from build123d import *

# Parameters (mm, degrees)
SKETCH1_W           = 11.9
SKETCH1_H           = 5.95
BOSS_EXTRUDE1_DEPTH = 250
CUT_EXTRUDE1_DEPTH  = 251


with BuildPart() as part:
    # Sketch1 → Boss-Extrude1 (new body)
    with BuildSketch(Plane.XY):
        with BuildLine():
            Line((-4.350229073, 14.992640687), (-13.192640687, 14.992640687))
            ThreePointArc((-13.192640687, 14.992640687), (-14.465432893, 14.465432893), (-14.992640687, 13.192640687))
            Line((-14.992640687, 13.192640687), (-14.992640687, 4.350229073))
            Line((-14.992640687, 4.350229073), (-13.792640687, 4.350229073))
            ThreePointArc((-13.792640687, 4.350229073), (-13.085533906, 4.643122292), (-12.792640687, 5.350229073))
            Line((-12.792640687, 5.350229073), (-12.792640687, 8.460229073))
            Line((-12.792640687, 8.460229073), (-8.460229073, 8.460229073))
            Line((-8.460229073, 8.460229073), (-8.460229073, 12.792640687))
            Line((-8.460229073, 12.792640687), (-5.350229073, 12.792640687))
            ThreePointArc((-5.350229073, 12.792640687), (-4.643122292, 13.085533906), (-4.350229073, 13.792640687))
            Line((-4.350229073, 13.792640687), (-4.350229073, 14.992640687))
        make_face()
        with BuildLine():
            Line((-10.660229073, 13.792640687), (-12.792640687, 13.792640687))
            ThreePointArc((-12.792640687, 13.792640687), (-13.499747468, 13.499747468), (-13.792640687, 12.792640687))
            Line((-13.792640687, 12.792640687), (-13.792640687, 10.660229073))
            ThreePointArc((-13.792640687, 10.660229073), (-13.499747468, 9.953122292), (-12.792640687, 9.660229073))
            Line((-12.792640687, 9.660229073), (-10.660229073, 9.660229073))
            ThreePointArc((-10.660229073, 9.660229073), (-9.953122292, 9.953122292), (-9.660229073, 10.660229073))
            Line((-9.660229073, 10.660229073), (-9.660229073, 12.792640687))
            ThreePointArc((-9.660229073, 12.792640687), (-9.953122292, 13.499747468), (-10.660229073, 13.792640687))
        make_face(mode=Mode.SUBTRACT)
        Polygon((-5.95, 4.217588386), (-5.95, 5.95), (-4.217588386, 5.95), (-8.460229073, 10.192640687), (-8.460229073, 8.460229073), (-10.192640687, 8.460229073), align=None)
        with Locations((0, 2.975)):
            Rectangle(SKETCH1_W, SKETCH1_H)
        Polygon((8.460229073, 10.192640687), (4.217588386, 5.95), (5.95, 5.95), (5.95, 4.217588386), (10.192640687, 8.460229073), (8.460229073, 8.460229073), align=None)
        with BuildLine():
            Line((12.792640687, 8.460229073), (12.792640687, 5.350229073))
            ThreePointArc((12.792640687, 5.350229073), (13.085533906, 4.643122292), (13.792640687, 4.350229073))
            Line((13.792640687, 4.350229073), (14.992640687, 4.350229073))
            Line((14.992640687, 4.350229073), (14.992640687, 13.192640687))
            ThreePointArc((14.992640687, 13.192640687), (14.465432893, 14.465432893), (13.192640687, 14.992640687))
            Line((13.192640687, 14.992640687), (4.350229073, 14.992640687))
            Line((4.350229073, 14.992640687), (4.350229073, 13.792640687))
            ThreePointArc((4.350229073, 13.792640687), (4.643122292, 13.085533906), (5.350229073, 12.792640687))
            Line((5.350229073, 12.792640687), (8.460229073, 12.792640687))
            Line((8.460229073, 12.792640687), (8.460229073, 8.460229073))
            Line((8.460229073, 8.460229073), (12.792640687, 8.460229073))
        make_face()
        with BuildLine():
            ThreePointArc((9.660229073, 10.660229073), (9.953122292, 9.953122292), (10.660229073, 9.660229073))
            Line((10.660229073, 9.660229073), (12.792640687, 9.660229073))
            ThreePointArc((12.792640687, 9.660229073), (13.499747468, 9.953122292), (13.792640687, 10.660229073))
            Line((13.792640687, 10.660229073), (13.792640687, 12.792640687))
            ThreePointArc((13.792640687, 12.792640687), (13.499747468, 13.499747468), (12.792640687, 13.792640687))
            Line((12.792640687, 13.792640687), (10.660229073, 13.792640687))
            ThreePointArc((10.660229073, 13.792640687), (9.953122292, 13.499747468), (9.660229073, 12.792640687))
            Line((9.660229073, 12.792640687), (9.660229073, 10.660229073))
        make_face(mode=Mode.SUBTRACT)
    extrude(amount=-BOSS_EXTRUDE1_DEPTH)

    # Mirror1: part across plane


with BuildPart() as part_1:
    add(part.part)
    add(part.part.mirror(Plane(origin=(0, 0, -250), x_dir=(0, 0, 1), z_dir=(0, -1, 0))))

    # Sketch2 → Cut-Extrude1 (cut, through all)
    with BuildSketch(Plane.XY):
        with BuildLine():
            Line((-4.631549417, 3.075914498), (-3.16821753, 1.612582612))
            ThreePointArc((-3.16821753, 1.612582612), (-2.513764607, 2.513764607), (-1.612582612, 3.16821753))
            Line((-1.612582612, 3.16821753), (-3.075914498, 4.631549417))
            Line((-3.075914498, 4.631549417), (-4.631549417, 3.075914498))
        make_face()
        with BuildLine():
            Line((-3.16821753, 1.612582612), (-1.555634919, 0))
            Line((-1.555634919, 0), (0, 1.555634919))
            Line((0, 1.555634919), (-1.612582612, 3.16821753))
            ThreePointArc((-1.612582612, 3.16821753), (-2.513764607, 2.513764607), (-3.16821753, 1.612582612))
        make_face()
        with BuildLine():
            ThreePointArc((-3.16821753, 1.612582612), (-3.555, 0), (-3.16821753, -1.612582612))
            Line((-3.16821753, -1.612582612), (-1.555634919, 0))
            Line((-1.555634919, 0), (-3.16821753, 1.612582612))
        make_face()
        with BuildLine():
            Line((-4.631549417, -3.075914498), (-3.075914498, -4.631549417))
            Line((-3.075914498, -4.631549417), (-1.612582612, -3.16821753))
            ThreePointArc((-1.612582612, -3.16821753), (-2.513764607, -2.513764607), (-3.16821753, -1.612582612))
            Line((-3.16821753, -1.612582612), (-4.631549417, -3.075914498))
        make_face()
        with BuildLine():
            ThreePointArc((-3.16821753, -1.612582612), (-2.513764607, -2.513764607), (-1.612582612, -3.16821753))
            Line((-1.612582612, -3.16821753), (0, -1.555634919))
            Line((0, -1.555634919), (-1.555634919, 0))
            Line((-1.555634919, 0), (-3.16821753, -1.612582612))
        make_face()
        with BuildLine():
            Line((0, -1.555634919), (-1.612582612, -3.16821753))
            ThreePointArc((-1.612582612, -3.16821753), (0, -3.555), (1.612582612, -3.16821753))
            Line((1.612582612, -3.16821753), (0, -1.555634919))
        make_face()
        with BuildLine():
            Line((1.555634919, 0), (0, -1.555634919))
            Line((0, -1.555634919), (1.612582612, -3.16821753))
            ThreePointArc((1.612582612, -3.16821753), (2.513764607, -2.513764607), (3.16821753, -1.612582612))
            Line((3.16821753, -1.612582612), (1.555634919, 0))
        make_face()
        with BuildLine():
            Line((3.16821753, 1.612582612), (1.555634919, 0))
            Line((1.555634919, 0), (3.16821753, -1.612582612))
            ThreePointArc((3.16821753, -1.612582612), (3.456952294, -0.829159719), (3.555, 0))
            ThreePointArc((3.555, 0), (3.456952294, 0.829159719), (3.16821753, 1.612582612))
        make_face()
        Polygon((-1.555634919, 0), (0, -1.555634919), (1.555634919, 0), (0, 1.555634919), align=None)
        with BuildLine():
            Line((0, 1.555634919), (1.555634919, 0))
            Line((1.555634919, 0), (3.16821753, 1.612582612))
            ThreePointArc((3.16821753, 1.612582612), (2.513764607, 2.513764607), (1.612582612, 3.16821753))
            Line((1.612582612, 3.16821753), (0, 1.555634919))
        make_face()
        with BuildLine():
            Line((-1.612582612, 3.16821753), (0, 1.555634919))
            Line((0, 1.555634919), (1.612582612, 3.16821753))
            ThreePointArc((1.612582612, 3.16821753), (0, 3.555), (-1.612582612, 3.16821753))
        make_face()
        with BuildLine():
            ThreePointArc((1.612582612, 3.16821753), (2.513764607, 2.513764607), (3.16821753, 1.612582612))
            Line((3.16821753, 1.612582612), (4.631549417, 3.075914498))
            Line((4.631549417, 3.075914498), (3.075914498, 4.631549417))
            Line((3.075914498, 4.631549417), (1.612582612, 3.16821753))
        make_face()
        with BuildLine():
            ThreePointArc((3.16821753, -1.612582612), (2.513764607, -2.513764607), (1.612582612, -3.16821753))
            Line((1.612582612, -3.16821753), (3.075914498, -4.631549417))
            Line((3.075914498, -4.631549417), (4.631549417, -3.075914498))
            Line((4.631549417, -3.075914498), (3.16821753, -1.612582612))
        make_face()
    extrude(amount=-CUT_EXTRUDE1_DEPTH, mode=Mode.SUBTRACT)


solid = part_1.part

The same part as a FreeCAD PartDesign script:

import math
import FreeCAD as App
import Part
import Sketcher
Q = App.Units.Quantity

doc = App.newDocument("Part")
body = doc.addObject("PartDesign::Body", "Body")

sketch1 = body.newObject("Sketcher::SketchObject", "Sketch")
sketch1.AttachmentSupport = (doc.getObject("XY_Plane"), [""])
sketch1.MapMode = "FlatFace"
sketch1.addGeometry(Part.LineSegment(App.Vector(-4.4, 15, 0), App.Vector(-13.2, 15, 0)), False)
sketch1.addGeometry(Part.ArcOfCircle(Part.Circle(App.Vector(-13.2, 13.2, 0), App.Vector(0, 0, 1), 1.8), math.radians(90), math.radians(180)), False)
sketch1.addGeometry(Part.LineSegment(App.Vector(-15, 13.2, 0), App.Vector(-15, 4.4, 0)), False)
sketch1.addGeometry(Part.LineSegment(App.Vector(-15, 4.4, 0), App.Vector(-13.8, 4.4, 0)), False)
sketch1.addGeometry(Part.ArcOfCircle(Part.Circle(App.Vector(-13.8, 5.4, 0), App.Vector(0, 0, 1), 1), math.radians(-90), math.radians(0)), False)
sketch1.addGeometry(Part.LineSegment(App.Vector(-12.8, 5.4, 0), App.Vector(-12.8, 8.5, 0)), False)
sketch1.addGeometry(Part.LineSegment(App.Vector(-12.8, 8.5, 0), App.Vector(-10.2, 8.5, 0)), False)
sketch1.addGeometry(Part.LineSegment(App.Vector(-10.2, 8.5, 0), App.Vector(-6, 4.2, 0)), False)
sketch1.addGeometry(Part.LineSegment(App.Vector(-6, 4.2, 0), App.Vector(-6, 0, 0)), False)
sketch1.addGeometry(Part.LineSegment(App.Vector(-6, 0, 0), App.Vector(6, 0, 0)), False)
sketch1.addGeometry(Part.LineSegment(App.Vector(6, 0, 0), App.Vector(6, 4.2, 0)), False)
sketch1.addGeometry(Part.LineSegment(App.Vector(6, 4.2, 0), App.Vector(10.2, 8.5, 0)), False)
sketch1.addGeometry(Part.LineSegment(App.Vector(10.2, 8.5, 0), App.Vector(12.8, 8.5, 0)), False)
sketch1.addGeometry(Part.LineSegment(App.Vector(12.8, 8.5, 0), App.Vector(12.8, 5.4, 0)), False)
sketch1.addGeometry(Part.ArcOfCircle(Part.Circle(App.Vector(13.8, 5.4, 0), App.Vector(0, 0, 1), 1), math.radians(-180), math.radians(-90)), False)
sketch1.addGeometry(Part.LineSegment(App.Vector(13.8, 4.4, 0), App.Vector(15, 4.4, 0)), False)
sketch1.addGeometry(Part.LineSegment(App.Vector(15, 4.4, 0), App.Vector(15, 13.2, 0)), False)
sketch1.addGeometry(Part.ArcOfCircle(Part.Circle(App.Vector(13.2, 13.2, 0), App.Vector(0, 0, 1), 1.8), math.radians(0), math.radians(90)), False)
sketch1.addGeometry(Part.LineSegment(App.Vector(13.2, 15, 0), App.Vector(4.4, 15, 0)), False)
sketch1.addGeometry(Part.LineSegment(App.Vector(4.4, 15, 0), App.Vector(4.4, 13.8, 0)), False)
sketch1.addGeometry(Part.ArcOfCircle(Part.Circle(App.Vector(5.4, 13.8, 0), App.Vector(0, 0, 1), 1), math.radians(-180), math.radians(-90)), False)
sketch1.addGeometry(Part.LineSegment(App.Vector(5.4, 12.8, 0), App.Vector(8.5, 12.8, 0)), False)
sketch1.addGeometry(Part.LineSegment(App.Vector(8.5, 12.8, 0), App.Vector(8.5, 10.2, 0)), False)
sketch1.addGeometry(Part.LineSegment(App.Vector(8.5, 10.2, 0), App.Vector(4.2, 6, 0)), False)
sketch1.addGeometry(Part.LineSegment(App.Vector(4.2, 6, 0), App.Vector(-4.2, 6, 0)), False)
sketch1.addGeometry(Part.LineSegment(App.Vector(-4.2, 6, 0), App.Vector(-8.5, 10.2, 0)), False)
sketch1.addGeometry(Part.LineSegment(App.Vector(-8.5, 10.2, 0), App.Vector(-8.5, 12.8, 0)), False)
sketch1.addGeometry(Part.LineSegment(App.Vector(-8.5, 12.8, 0), App.Vector(-5.4, 12.8, 0)), False)
sketch1.addGeometry(Part.ArcOfCircle(Part.Circle(App.Vector(-5.4, 13.8, 0), App.Vector(0, 0, 1), 1), math.radians(-90), math.radians(0)), False)
sketch1.addGeometry(Part.LineSegment(App.Vector(-4.4, 13.8, 0), App.Vector(-4.4, 15, 0)), False)
sketch1.addGeometry(Part.LineSegment(App.Vector(-12.8, 13.8, 0), App.Vector(-10.7, 13.8, 0)), False)
sketch1.addGeometry(Part.ArcOfCircle(Part.Circle(App.Vector(-10.7, 12.8, 0), App.Vector(0, 0, 1), 1), math.radians(0), math.radians(90)), False)
sketch1.addGeometry(Part.LineSegment(App.Vector(-9.7, 12.8, 0), App.Vector(-9.7, 10.7, 0)), False)
sketch1.addGeometry(Part.ArcOfCircle(Part.Circle(App.Vector(-10.7, 10.7, 0), App.Vector(0, 0, 1), 1), math.radians(-90), math.radians(0)), False)
sketch1.addGeometry(Part.LineSegment(App.Vector(-10.7, 9.7, 0), App.Vector(-12.8, 9.7, 0)), False)
sketch1.addGeometry(Part.ArcOfCircle(Part.Circle(App.Vector(-12.8, 10.7, 0), App.Vector(0, 0, 1), 1), math.radians(-180), math.radians(-90)), False)
sketch1.addGeometry(Part.LineSegment(App.Vector(-13.8, 10.7, 0), App.Vector(-13.8, 12.8, 0)), False)
sketch1.addGeometry(Part.ArcOfCircle(Part.Circle(App.Vector(-12.8, 12.8, 0), App.Vector(0, 0, 1), 1), math.radians(90), math.radians(180)), False)
sketch1.addGeometry(Part.ArcOfCircle(Part.Circle(App.Vector(10.7, 10.7, 0), App.Vector(0, 0, 1), 1), math.radians(-180), math.radians(-90)), False)
sketch1.addGeometry(Part.LineSegment(App.Vector(9.7, 10.7, 0), App.Vector(9.7, 12.8, 0)), False)
sketch1.addGeometry(Part.ArcOfCircle(Part.Circle(App.Vector(10.7, 12.8, 0), App.Vector(0, 0, 1), 1), math.radians(90), math.radians(180)), False)
sketch1.addGeometry(Part.LineSegment(App.Vector(10.7, 13.8, 0), App.Vector(12.8, 13.8, 0)), False)
sketch1.addGeometry(Part.ArcOfCircle(Part.Circle(App.Vector(12.8, 12.8, 0), App.Vector(0, 0, 1), 1), math.radians(0), math.radians(90)), False)
sketch1.addGeometry(Part.LineSegment(App.Vector(13.8, 12.8, 0), App.Vector(13.8, 10.7, 0)), False)
sketch1.addGeometry(Part.ArcOfCircle(Part.Circle(App.Vector(12.8, 10.7, 0), App.Vector(0, 0, 1), 1), math.radians(-90), math.radians(0)), False)
sketch1.addGeometry(Part.LineSegment(App.Vector(12.8, 9.7, 0), App.Vector(10.7, 9.7, 0)), False)
sketch1.addConstraint(Sketcher.Constraint("Tangent", 0, 2, 1, 1))
sketch1.addConstraint(Sketcher.Constraint("Tangent", 1, 2, 2, 1))
sketch1.addConstraint(Sketcher.Constraint("Coincident", 2, 2, 3, 1))
sketch1.addConstraint(Sketcher.Constraint("Tangent", 3, 2, 4, 1))
sketch1.addConstraint(Sketcher.Constraint("Tangent", 4, 2, 5, 1))
sketch1.addConstraint(Sketcher.Constraint("Coincident", 5, 2, 6, 1))
sketch1.addConstraint(Sketcher.Constraint("Coincident", 6, 2, 7, 1))
sketch1.addConstraint(Sketcher.Constraint("Coincident", 7, 2, 8, 1))
sketch1.addConstraint(Sketcher.Constraint("Coincident", 8, 2, 9, 1))
sketch1.addConstraint(Sketcher.Constraint("Coincident", 9, 2, 10, 1))
sketch1.addConstraint(Sketcher.Constraint("Coincident", 10, 2, 11, 1))
sketch1.addConstraint(Sketcher.Constraint("Coincident", 11, 2, 12, 1))
sketch1.addConstraint(Sketcher.Constraint("Coincident", 12, 2, 13, 1))
sketch1.addConstraint(Sketcher.Constraint("Tangent", 13, 2, 14, 1))
sketch1.addConstraint(Sketcher.Constraint("Tangent", 14, 2, 15, 1))
sketch1.addConstraint(Sketcher.Constraint("Coincident", 15, 2, 16, 1))
sketch1.addConstraint(Sketcher.Constraint("Tangent", 16, 2, 17, 1))
sketch1.addConstraint(Sketcher.Constraint("Tangent", 17, 2, 18, 1))
sketch1.addConstraint(Sketcher.Constraint("Coincident", 18, 2, 19, 1))
sketch1.addConstraint(Sketcher.Constraint("Tangent", 19, 2, 20, 1))
sketch1.addConstraint(Sketcher.Constraint("Tangent", 20, 2, 21, 1))
sketch1.addConstraint(Sketcher.Constraint("Coincident", 21, 2, 22, 1))
sketch1.addConstraint(Sketcher.Constraint("Coincident", 22, 2, 23, 1))
sketch1.addConstraint(Sketcher.Constraint("Coincident", 23, 2, 24, 1))
sketch1.addConstraint(Sketcher.Constraint("Coincident", 24, 2, 25, 1))
sketch1.addConstraint(Sketcher.Constraint("Coincident", 25, 2, 26, 1))
sketch1.addConstraint(Sketcher.Constraint("Coincident", 26, 2, 27, 1))
sketch1.addConstraint(Sketcher.Constraint("Tangent", 27, 2, 28, 1))
sketch1.addConstraint(Sketcher.Constraint("Tangent", 28, 2, 29, 1))
sketch1.addConstraint(Sketcher.Constraint("Coincident", 29, 2, 0, 1))
sketch1.addConstraint(Sketcher.Constraint("Tangent", 30, 2, 31, 2))
sketch1.addConstraint(Sketcher.Constraint("Tangent", 31, 1, 32, 1))
sketch1.addConstraint(Sketcher.Constraint("Tangent", 32, 2, 33, 2))
sketch1.addConstraint(Sketcher.Constraint("Tangent", 33, 1, 34, 1))
sketch1.addConstraint(Sketcher.Constraint("Tangent", 34, 2, 35, 2))
sketch1.addConstraint(Sketcher.Constraint("Tangent", 35, 1, 36, 1))
sketch1.addConstraint(Sketcher.Constraint("Tangent", 36, 2, 37, 2))
sketch1.addConstraint(Sketcher.Constraint("Tangent", 37, 1, 30, 1))
sketch1.addConstraint(Sketcher.Constraint("Tangent", 38, 1, 39, 1))
sketch1.addConstraint(Sketcher.Constraint("Tangent", 39, 2, 40, 2))
sketch1.addConstraint(Sketcher.Constraint("Tangent", 40, 1, 41, 1))
sketch1.addConstraint(Sketcher.Constraint("Tangent", 41, 2, 42, 2))
sketch1.addConstraint(Sketcher.Constraint("Tangent", 42, 1, 43, 1))
sketch1.addConstraint(Sketcher.Constraint("Tangent", 43, 2, 44, 2))
sketch1.addConstraint(Sketcher.Constraint("Tangent", 44, 1, 45, 1))
sketch1.addConstraint(Sketcher.Constraint("Tangent", 45, 2, 38, 2))
sketch1.addConstraint(Sketcher.Constraint("Horizontal", 0))
sketch1.addConstraint(Sketcher.Constraint("Vertical", 2))
sketch1.addConstraint(Sketcher.Constraint("Horizontal", 3))
sketch1.addConstraint(Sketcher.Constraint("Vertical", 5))
sketch1.addConstraint(Sketcher.Constraint("Horizontal", 6))
sketch1.addConstraint(Sketcher.Constraint("Vertical", 8))
sketch1.addConstraint(Sketcher.Constraint("Horizontal", 9))
sketch1.addConstraint(Sketcher.Constraint("Vertical", 10))
sketch1.addConstraint(Sketcher.Constraint("Horizontal", 12))
sketch1.addConstraint(Sketcher.Constraint("Vertical", 13))
sketch1.addConstraint(Sketcher.Constraint("Horizontal", 15))
sketch1.addConstraint(Sketcher.Constraint("Vertical", 16))
sketch1.addConstraint(Sketcher.Constraint("Horizontal", 18))
sketch1.addConstraint(Sketcher.Constraint("Vertical", 19))
sketch1.addConstraint(Sketcher.Constraint("Horizontal", 21))
sketch1.addConstraint(Sketcher.Constraint("Vertical", 22))
sketch1.addConstraint(Sketcher.Constraint("Horizontal", 24))
sketch1.addConstraint(Sketcher.Constraint("Vertical", 26))
sketch1.addConstraint(Sketcher.Constraint("Horizontal", 27))
sketch1.addConstraint(Sketcher.Constraint("Vertical", 29))
sketch1.addConstraint(Sketcher.Constraint("Horizontal", 30))
sketch1.addConstraint(Sketcher.Constraint("Vertical", 32))
sketch1.addConstraint(Sketcher.Constraint("Horizontal", 34))
sketch1.addConstraint(Sketcher.Constraint("Vertical", 36))
sketch1.addConstraint(Sketcher.Constraint("Vertical", 39))
sketch1.addConstraint(Sketcher.Constraint("Horizontal", 41))
sketch1.addConstraint(Sketcher.Constraint("Vertical", 43))
sketch1.addConstraint(Sketcher.Constraint("Horizontal", 45))
sketch1.addConstraint(Sketcher.Constraint("Equal", 4, 14))
sketch1.addConstraint(Sketcher.Constraint("Equal", 1, 17))
sketch1.addConstraint(Sketcher.Constraint("Equal", 14, 20))
sketch1.addConstraint(Sketcher.Constraint("Equal", 20, 28))
sketch1.addConstraint(Sketcher.Constraint("Equal", 28, 31))
sketch1.addConstraint(Sketcher.Constraint("Equal", 31, 33))
sketch1.addConstraint(Sketcher.Constraint("Equal", 33, 35))
sketch1.addConstraint(Sketcher.Constraint("Equal", 35, 37))
sketch1.addConstraint(Sketcher.Constraint("Equal", 37, 38))
sketch1.addConstraint(Sketcher.Constraint("Equal", 38, 40))
sketch1.addConstraint(Sketcher.Constraint("Equal", 40, 42))
sketch1.addConstraint(Sketcher.Constraint("Equal", 42, 44))
sketch1.addConstraint(Sketcher.Constraint("Symmetric", 8, 2, 9, 2, -1, 1))
sketch1.addConstraint(Sketcher.Constraint("Symmetric", 4, 3, 14, 3, -2))
sketch1.addConstraint(Sketcher.Constraint("Symmetric", 1, 3, 17, 3, -2))
sketch1.addConstraint(Sketcher.Constraint("Symmetric", 20, 3, 28, 3, -2))
sketch1.addConstraint(Sketcher.Constraint("Symmetric", 33, 3, 38, 3, -2))
sketch1.addConstraint(Sketcher.Constraint("Symmetric", 37, 3, 42, 3, -2))
sketch1.addConstraint(Sketcher.Constraint("Symmetric", 6, 2, 11, 2, -2))
sketch1.addConstraint(Sketcher.Constraint("Symmetric", 22, 2, 25, 2, -2))
sketch1.addConstraint(Sketcher.Constraint("Perpendicular", 7, 11))
sketch1.addConstraint(Sketcher.Constraint("Parallel", 11, 23))
sketch1.addConstraint(Sketcher.Constraint("Perpendicular", 23, 25))
sketch1.addConstraint(Sketcher.Constraint("Horizontal", 7, 2, 10, 2))
sketch1.addConstraint(Sketcher.Constraint("Horizontal", 42, 3, 20, 2))
sketch1.addConstraint(Sketcher.Constraint("Vertical", 37, 3, 4, 2))
sketch1.addConstraint(Sketcher.Constraint("Equal", 18, 2))
sketch1.addConstraint(Sketcher.Constraint("Equal", 27, 5))
sketch1.addConstraint(Sketcher.Constraint("Equal", 15, 19))
sketch1.addConstraint(Sketcher.Constraint("Equal", 12, 22))
sketch1.addConstraint(Sketcher.Constraint("Equal", 45, 32))
sketch1.addConstraint(Sketcher.Constraint("Equal", 11, 23))
sketch1.addConstraint(Sketcher.Constraint("Radius", 4, Q("1 mm")))
sketch1.addConstraint(Sketcher.Constraint("Radius", 1, Q("1.8 mm")))
sketch1.addConstraint(Sketcher.Constraint("Distance", 7, Q("6 mm")))
sketch1.addConstraint(Sketcher.Constraint("DistanceX", 3, 1, 3, 2, Q("1.2 mm")))
sketch1.addConstraint(Sketcher.Constraint("DistanceX", 6, 1, 6, 2, Q("2.6 mm")))
sketch1.addConstraint(Sketcher.Constraint("DistanceX", 9, 1, 9, 2, Q("11.9 mm")))
sketch1.addConstraint(Sketcher.Constraint("DistanceX", 21, 1, 21, 2, Q("3.11 mm")))
sketch1.addConstraint(Sketcher.Constraint("DistanceY", 5, 2, 35, 3, Q("2.2 mm")))
sketch1.addConstraint(Sketcher.Constraint("DistanceY", -1, 1, 23, 2, Q("5.95 mm")))
sketch1.addConstraint(Sketcher.Constraint("DistanceX", 0, 2, 0, 1, Q("8.842412 mm")))
pad1 = body.newObject("PartDesign::Pad", "Pad")
pad1.Profile = sketch1
pad1.Length = 250
pad1.Reversed = True
body2 = doc.addObject("PartDesign::Body", "Body001")
doc.recompute()

body2.BaseFeature = body
doc.recompute()

mirroring = doc.addObject("Part::Mirroring", "Mirroring")
mirroring.Source = body
mirroring.Base = App.Vector(0, 0, -250)
mirroring.Normal = App.Vector(0, -1, 0)
body3 = doc.addObject("PartDesign::Body", "Body002")
body3.BaseFeature = mirroring
boolean = body2.newObject("PartDesign::Boolean", "Boolean")
boolean.Type = "Fuse"
boolean.addObjects([body3])
doc.recompute()

sketch2 = body2.newObject("Sketcher::SketchObject", "Sketch001")
sketch2.AttachmentSupport = (doc.getObject("XY_Plane001"), [""])
sketch2.MapMode = "FlatFace"
sketch2.addGeometry(Part.LineSegment(App.Vector(-4.6, 3.1, 0), App.Vector(-3.2, 1.6, 0)), False)
sketch2.addGeometry(Part.ArcOfCircle(Part.Circle(App.Vector(0, 0, 0), App.Vector(0, 0, 1), 3.6), math.radians(153), math.radians(207)), False)
sketch2.addGeometry(Part.LineSegment(App.Vector(-3.2, -1.6, 0), App.Vector(-4.6, -3.1, 0)), False)
sketch2.addGeometry(Part.LineSegment(App.Vector(-4.6, -3.1, 0), App.Vector(-3.1, -4.6, 0)), False)
sketch2.addGeometry(Part.LineSegment(App.Vector(-3.1, -4.6, 0), App.Vector(-1.6, -3.2, 0)), False)
sketch2.addGeometry(Part.ArcOfCircle(Part.Circle(App.Vector(0, 0, 0), App.Vector(0, 0, 1), 3.6), math.radians(-117), math.radians(-63)), False)
sketch2.addGeometry(Part.LineSegment(App.Vector(1.6, -3.2, 0), App.Vector(3.1, -4.6, 0)), False)
sketch2.addGeometry(Part.LineSegment(App.Vector(3.1, -4.6, 0), App.Vector(4.6, -3.1, 0)), False)
sketch2.addGeometry(Part.LineSegment(App.Vector(4.6, -3.1, 0), App.Vector(3.2, -1.6, 0)), False)
sketch2.addGeometry(Part.ArcOfCircle(Part.Circle(App.Vector(0, 0, 0), App.Vector(0, 0, 1), 3.6), math.radians(-27), math.radians(0)), False)
sketch2.addGeometry(Part.ArcOfCircle(Part.Circle(App.Vector(0, 0, 0), App.Vector(0, 0, 1), 3.6), math.radians(0), math.radians(27)), False)
sketch2.addGeometry(Part.LineSegment(App.Vector(3.2, 1.6, 0), App.Vector(4.6, 3.1, 0)), False)
sketch2.addGeometry(Part.LineSegment(App.Vector(4.6, 3.1, 0), App.Vector(3.1, 4.6, 0)), False)
sketch2.addGeometry(Part.LineSegment(App.Vector(3.1, 4.6, 0), App.Vector(1.6, 3.2, 0)), False)
sketch2.addGeometry(Part.ArcOfCircle(Part.Circle(App.Vector(0, 0, 0), App.Vector(0, 0, 1), 3.6), math.radians(63), math.radians(117)), False)
sketch2.addGeometry(Part.LineSegment(App.Vector(-1.6, 3.2, 0), App.Vector(-3.1, 4.6, 0)), False)
sketch2.addGeometry(Part.LineSegment(App.Vector(-3.1, 4.6, 0), App.Vector(-4.6, 3.1, 0)), False)
sketch2.addConstraint(Sketcher.Constraint("Coincident", 0, 2, 1, 1))
sketch2.addConstraint(Sketcher.Constraint("Coincident", 1, 2, 2, 1))
sketch2.addConstraint(Sketcher.Constraint("Coincident", 2, 2, 3, 1))
sketch2.addConstraint(Sketcher.Constraint("Coincident", 3, 2, 4, 1))
sketch2.addConstraint(Sketcher.Constraint("Coincident", 4, 2, 5, 1))
sketch2.addConstraint(Sketcher.Constraint("Coincident", 5, 2, 6, 1))
sketch2.addConstraint(Sketcher.Constraint("Coincident", 6, 2, 7, 1))
sketch2.addConstraint(Sketcher.Constraint("Coincident", 7, 2, 8, 1))
sketch2.addConstraint(Sketcher.Constraint("Coincident", 8, 2, 9, 1))
sketch2.addConstraint(Sketcher.Constraint("Tangent", 9, 2, 10, 1))
sketch2.addConstraint(Sketcher.Constraint("Coincident", 10, 2, 11, 1))
sketch2.addConstraint(Sketcher.Constraint("Coincident", 11, 2, 12, 1))
sketch2.addConstraint(Sketcher.Constraint("Coincident", 12, 2, 13, 1))
sketch2.addConstraint(Sketcher.Constraint("Coincident", 13, 2, 14, 1))
sketch2.addConstraint(Sketcher.Constraint("Coincident", 14, 2, 15, 1))
sketch2.addConstraint(Sketcher.Constraint("Coincident", 15, 2, 16, 1))
sketch2.addConstraint(Sketcher.Constraint("Coincident", 16, 2, 0, 1))
sketch2.addConstraint(Sketcher.Constraint("Coincident", 1, 3, -1, 1))
sketch2.addConstraint(Sketcher.Constraint("Coincident", 5, 3, -1, 1))
sketch2.addConstraint(Sketcher.Constraint("Coincident", 9, 3, -1, 1))
sketch2.addConstraint(Sketcher.Constraint("Coincident", 14, 3, -1, 1))
sketch2.addConstraint(Sketcher.Constraint("Equal", 1, 5))
sketch2.addConstraint(Sketcher.Constraint("Equal", 5, 9))
sketch2.addConstraint(Sketcher.Constraint("Equal", 9, 10))
sketch2.addConstraint(Sketcher.Constraint("Equal", 10, 14))
sketch2.addConstraint(Sketcher.Constraint("Symmetric", 2, 2, 11, 2, -1, 1))
sketch2.addConstraint(Sketcher.Constraint("Symmetric", 3, 2, 12, 2, -1, 1))
sketch2.addConstraint(Sketcher.Constraint("Symmetric", 6, 2, 15, 2, -1, 1))
sketch2.addConstraint(Sketcher.Constraint("Symmetric", 7, 2, 16, 2, -1, 1))
sketch2.addConstraint(Sketcher.Constraint("Symmetric", 3, 2, 6, 2, -2))
sketch2.addConstraint(Sketcher.Constraint("Symmetric", 2, 2, 7, 2, -2))
sketch2.addConstraint(Sketcher.Constraint("PointOnObject", 9, 2, -1))
sketch2.addConstraint(Sketcher.Constraint("Perpendicular", 0, 2))
sketch2.addConstraint(Sketcher.Constraint("Perpendicular", 2, 3))
sketch2.addConstraint(Sketcher.Constraint("Perpendicular", 3, 4))
sketch2.addConstraint(Sketcher.Constraint("Perpendicular", 4, 6))
sketch2.addConstraint(Sketcher.Constraint("Perpendicular", 6, 7))
sketch2.addConstraint(Sketcher.Constraint("Perpendicular", 7, 8))
sketch2.addConstraint(Sketcher.Constraint("Perpendicular", 8, 11))
sketch2.addConstraint(Sketcher.Constraint("Perpendicular", 12, 13))
sketch2.addConstraint(Sketcher.Constraint("Perpendicular", 13, 15))
sketch2.addConstraint(Sketcher.Constraint("Equal", 2, 4))
sketch2.addConstraint(Sketcher.Constraint("Radius", 1, Q("3.555 mm")))
sketch2.addConstraint(Sketcher.Constraint("Distance", 3, Q("2.2 mm")))
sketch2.addConstraint(Sketcher.Constraint("DistanceX", 2, 2, -1, 1, Q("4.631549 mm")))
pocket1 = body2.newObject("PartDesign::Pocket", "Pocket")
pocket1.Profile = sketch2
pocket1.Type = "ThroughAll"
mirroring.Visibility = False

doc.recompute()
